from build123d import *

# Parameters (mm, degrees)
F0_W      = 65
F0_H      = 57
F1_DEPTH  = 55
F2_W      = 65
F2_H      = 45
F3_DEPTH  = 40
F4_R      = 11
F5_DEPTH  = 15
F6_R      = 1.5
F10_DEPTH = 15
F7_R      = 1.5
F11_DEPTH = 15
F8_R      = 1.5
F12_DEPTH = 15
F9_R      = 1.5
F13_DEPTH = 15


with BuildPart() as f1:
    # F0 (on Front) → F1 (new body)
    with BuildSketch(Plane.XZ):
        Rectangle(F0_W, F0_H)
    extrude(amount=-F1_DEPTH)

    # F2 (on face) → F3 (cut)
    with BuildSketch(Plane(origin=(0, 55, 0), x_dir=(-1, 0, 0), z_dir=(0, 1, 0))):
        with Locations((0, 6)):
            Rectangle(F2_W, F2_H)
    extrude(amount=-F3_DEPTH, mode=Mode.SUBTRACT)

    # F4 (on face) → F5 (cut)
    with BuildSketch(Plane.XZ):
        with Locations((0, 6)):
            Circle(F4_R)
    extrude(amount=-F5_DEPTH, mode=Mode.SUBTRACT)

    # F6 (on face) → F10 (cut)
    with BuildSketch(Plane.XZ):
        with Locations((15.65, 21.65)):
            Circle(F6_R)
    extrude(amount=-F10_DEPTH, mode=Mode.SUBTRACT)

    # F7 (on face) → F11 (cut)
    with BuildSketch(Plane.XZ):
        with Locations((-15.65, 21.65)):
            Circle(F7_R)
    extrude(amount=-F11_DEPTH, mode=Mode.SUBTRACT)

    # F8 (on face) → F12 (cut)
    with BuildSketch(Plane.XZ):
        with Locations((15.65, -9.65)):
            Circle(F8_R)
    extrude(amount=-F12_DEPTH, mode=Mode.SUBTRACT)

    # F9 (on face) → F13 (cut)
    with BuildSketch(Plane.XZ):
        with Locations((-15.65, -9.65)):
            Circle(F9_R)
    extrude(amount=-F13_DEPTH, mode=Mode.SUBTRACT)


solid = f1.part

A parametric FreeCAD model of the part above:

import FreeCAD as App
import Part
import Sketcher

doc = App.newDocument("Part")
body = doc.addObject("PartDesign::Body", "Body")

# Sketch on XZ plane
sketch1 = body.newObject("Sketcher::SketchObject", "Sketch")
sketch1.AttachmentSupport = (doc.getObject("XZ_Plane"), [""])
sketch1.MapMode = "FlatFace"
sketch1.addGeometry(Part.LineSegment(App.Vector(-32, 28, 0), App.Vector(-32, -28, 0)), False)
sketch1.addGeometry(Part.LineSegment(App.Vector(-32, -28, 0), App.Vector(32, -28, 0)), False)
sketch1.addGeometry(Part.LineSegment(App.Vector(32, -28, 0), App.Vector(32, 28, 0)), False)
sketch1.addGeometry(Part.LineSegment(App.Vector(32, 28, 0), App.Vector(-32, 28, 0)), False)
sketch1.addConstraint(Sketcher.Constraint("Coincident", 0, 2, 1, 1))
sketch1.addConstraint(Sketcher.Constraint("Coincident", 1, 2, 2, 1))
sketch1.addConstraint(Sketcher.Constraint("Coincident", 2, 2, 3, 1))
sketch1.addConstraint(Sketcher.Constraint("Coincident", 3, 2, 0, 1))
sketch1.addConstraint(Sketcher.Constraint("Vertical", 0))
sketch1.addConstraint(Sketcher.Constraint("Horizontal", 1))
sketch1.addConstraint(Sketcher.Constraint("Vertical", 2))
sketch1.addConstraint(Sketcher.Constraint("Horizontal", 3))
sketch1.addConstraint(Sketcher.Constraint("Symmetric", 0, 2, 2, 2, -1, 1))
sketch1.addConstraint(Sketcher.Constraint("DistanceX", 1, 1, 1, 2, 65.0))
sketch1.addConstraint(Sketcher.Constraint("DistanceY", 0, 2, 0, 1, 57.0))
pad1 = body.newObject("PartDesign::Pad", "Pad")
pad1.Profile = sketch1
pad1.Length = 55
pad1.Reversed = True

# Sketch on XZ plane
sketch2 = body.newObject("Sketcher::SketchObject", "Sketch001")
sketch2.AttachmentSupport = (doc.getObject("XZ_Plane"), [""])
sketch2.MapMode = "FlatFace"
sketch2.AttachmentOffset = App.Placement(App.Vector(0, 0, -55), App.Rotation())
sketch2.addGeometry(Part.LineSegment(App.Vector(32, 28, 0), App.Vector(32, -16, 0)), False)
sketch2.addGeometry(Part.LineSegment(App.Vector(32, -16, 0), App.Vector(-32, -16, 0)), False)
sketch2.addGeometry(Part.LineSegment(App.Vector(-32, -16, 0), App.Vector(-32, 28, 0)), False)
sketch2.addGeometry(Part.LineSegment(App.Vector(-32, 28, 0), App.Vector(32, 28, 0)), False)
sketch2.addConstraint(Sketcher.Constraint("Coincident", 0, 2, 1, 1))
sketch2.addConstraint(Sketcher.Constraint("Coincident", 1, 2, 2, 1))
sketch2.addConstraint(Sketcher.Constraint("Coincident", 2, 2, 3, 1))
sketch2.addConstraint(Sketcher.Constraint("Coincident", 3, 2, 0, 1))
sketch2.addConstraint(Sketcher.Constraint("Vertical", 0))
sketch2.addConstraint(Sketcher.Constraint("Horizontal", 1))
sketch2.addConstraint(Sketcher.Constraint("Vertical", 2))
sketch2.addConstraint(Sketcher.Constraint("Horizontal", 3))
sketch2.addConstraint(Sketcher.Constraint("DistanceX", 1, 2, 1, 1, 65.0))
sketch2.addConstraint(Sketcher.Constraint("DistanceY", 0, 2, 0, 1, 45.0))
sketch2.addConstraint(Sketcher.Constraint("DistanceX", -1, 1, 0, 2, 32.5))
sketch2.addConstraint(Sketcher.Constraint("DistanceY", 0, 2, -1, 1, 16.5))
pocket1 = body.newObject("PartDesign::Pocket", "Pocket")
pocket1.Profile = sketch2
pocket1.Length = 40
pocket1.Reversed = True

# Sketch on XZ plane
sketch3 = body.newObject("Sketcher::SketchObject", "Sketch002")
sketch3.AttachmentSupport = (doc.getObject("XZ_Plane"), [""])
sketch3.MapMode = "FlatFace"
sketch3.addGeometry(Part.Circle(App.Vector(0, 6, 0), App.Vector(0, 0, 1), 11), False)
sketch3.addConstraint(Sketcher.Constraint("PointOnObject", 0, 3, -2))
sketch3.addConstraint(Sketcher.Constraint("Diameter", 0, 22.0))
sketch3.addConstraint(Sketcher.Constraint("DistanceY", -1, 1, 0, 3, 6.0))
pocket2 = body.newObject("PartDesign::Pocket", "Pocket001")
pocket2.Profile = sketch3
pocket2.Length = 15

# Sketch on XZ plane
sketch4 = body.newObject("Sketcher::SketchObject", "Sketch003")
sketch4.AttachmentSupport = (doc.getObject("XZ_Plane"), [""])
sketch4.MapMode = "FlatFace"
sketch4.addGeometry(Part.Circle(App.Vector(15.7, 21.6, 0), App.Vector(0, 0, 1), 1.5), False)
sketch4.addConstraint(Sketcher.Constraint("Diameter", 0, 3.0))
sketch4.addConstraint(Sketcher.Constraint("DistanceX", -1, 1, 0, 3, 15.65))
sketch4.addConstraint(Sketcher.Constraint("DistanceY", -1, 1, 0, 3, 21.65))
pocket3 = body.newObject("PartDesign::Pocket", "Pocket002")
pocket3.Profile = sketch4
pocket3.Length = 15

# Sketch on XZ plane
sketch5 = body.newObject("Sketcher::SketchObject", "Sketch004")
sketch5.AttachmentSupport = (doc.getObject("XZ_Plane"), [""])
sketch5.MapMode = "FlatFace"
sketch5.addGeometry(Part.Circle(App.Vector(-15.7, 21.6, 0), App.Vector(0, 0, 1), 1.5), False)
sketch5.addConstraint(Sketcher.Constraint("Diameter", 0, 3.0))
sketch5.addConstraint(Sketcher.Constraint("DistanceX", 0, 3, -1, 1, 15.65))
sketch5.addConstraint(Sketcher.Constraint("DistanceY", -1, 1, 0, 3, 21.65))
pocket4 = body.newObject("PartDesign::Pocket", "Pocket003")
pocket4.Profile = sketch5
pocket4.Length = 15

# Sketch on XZ plane
sketch6 = body.newObject("Sketcher::SketchObject", "Sketch005")
sketch6.AttachmentSupport = (doc.getObject("XZ_Plane"), [""])
sketch6.MapMode = "FlatFace"
sketch6.addGeometry(Part.Circle(App.Vector(15.7, -9.7, 0), App.Vector(0, 0, 1), 1.5), False)
sketch6.addConstraint(Sketcher.Constraint("Diameter", 0, 3.0))
sketch6.addConstraint(Sketcher.Constraint("DistanceX", -1, 1, 0, 3, 15.65))
sketch6.addConstraint(Sketcher.Constraint("DistanceY", 0, 3, -1, 1, 9.65))
pocket5 = body.newObject("PartDesign::Pocket", "Pocket004")
pocket5.Profile = sketch6
pocket5.Length = 15

# Sketch on XZ plane
sketch7 = body.newObject("Sketcher::SketchObject", "Sketch006")
sketch7.AttachmentSupport = (doc.getObject("XZ_Plane"), [""])
sketch7.MapMode = "FlatFace"
sketch7.addGeometry(Part.Circle(App.Vector(-15.7, -9.7, 0), App.Vector(0, 0, 1), 1.5), False)
sketch7.addConstraint(Sketcher.Constraint("Diameter", 0, 3.0))
sketch7.addConstraint(Sketcher.Constraint("DistanceX", 0, 3, -1, 1, 15.65))
sketch7.addConstraint(Sketcher.Constraint("DistanceY", 0, 3, -1, 1, 9.65))
pocket6 = body.newObject("PartDesign::Pocket", "Pocket005")
pocket6.Profile = sketch7
pocket6.Length = 15

doc.recompute()
